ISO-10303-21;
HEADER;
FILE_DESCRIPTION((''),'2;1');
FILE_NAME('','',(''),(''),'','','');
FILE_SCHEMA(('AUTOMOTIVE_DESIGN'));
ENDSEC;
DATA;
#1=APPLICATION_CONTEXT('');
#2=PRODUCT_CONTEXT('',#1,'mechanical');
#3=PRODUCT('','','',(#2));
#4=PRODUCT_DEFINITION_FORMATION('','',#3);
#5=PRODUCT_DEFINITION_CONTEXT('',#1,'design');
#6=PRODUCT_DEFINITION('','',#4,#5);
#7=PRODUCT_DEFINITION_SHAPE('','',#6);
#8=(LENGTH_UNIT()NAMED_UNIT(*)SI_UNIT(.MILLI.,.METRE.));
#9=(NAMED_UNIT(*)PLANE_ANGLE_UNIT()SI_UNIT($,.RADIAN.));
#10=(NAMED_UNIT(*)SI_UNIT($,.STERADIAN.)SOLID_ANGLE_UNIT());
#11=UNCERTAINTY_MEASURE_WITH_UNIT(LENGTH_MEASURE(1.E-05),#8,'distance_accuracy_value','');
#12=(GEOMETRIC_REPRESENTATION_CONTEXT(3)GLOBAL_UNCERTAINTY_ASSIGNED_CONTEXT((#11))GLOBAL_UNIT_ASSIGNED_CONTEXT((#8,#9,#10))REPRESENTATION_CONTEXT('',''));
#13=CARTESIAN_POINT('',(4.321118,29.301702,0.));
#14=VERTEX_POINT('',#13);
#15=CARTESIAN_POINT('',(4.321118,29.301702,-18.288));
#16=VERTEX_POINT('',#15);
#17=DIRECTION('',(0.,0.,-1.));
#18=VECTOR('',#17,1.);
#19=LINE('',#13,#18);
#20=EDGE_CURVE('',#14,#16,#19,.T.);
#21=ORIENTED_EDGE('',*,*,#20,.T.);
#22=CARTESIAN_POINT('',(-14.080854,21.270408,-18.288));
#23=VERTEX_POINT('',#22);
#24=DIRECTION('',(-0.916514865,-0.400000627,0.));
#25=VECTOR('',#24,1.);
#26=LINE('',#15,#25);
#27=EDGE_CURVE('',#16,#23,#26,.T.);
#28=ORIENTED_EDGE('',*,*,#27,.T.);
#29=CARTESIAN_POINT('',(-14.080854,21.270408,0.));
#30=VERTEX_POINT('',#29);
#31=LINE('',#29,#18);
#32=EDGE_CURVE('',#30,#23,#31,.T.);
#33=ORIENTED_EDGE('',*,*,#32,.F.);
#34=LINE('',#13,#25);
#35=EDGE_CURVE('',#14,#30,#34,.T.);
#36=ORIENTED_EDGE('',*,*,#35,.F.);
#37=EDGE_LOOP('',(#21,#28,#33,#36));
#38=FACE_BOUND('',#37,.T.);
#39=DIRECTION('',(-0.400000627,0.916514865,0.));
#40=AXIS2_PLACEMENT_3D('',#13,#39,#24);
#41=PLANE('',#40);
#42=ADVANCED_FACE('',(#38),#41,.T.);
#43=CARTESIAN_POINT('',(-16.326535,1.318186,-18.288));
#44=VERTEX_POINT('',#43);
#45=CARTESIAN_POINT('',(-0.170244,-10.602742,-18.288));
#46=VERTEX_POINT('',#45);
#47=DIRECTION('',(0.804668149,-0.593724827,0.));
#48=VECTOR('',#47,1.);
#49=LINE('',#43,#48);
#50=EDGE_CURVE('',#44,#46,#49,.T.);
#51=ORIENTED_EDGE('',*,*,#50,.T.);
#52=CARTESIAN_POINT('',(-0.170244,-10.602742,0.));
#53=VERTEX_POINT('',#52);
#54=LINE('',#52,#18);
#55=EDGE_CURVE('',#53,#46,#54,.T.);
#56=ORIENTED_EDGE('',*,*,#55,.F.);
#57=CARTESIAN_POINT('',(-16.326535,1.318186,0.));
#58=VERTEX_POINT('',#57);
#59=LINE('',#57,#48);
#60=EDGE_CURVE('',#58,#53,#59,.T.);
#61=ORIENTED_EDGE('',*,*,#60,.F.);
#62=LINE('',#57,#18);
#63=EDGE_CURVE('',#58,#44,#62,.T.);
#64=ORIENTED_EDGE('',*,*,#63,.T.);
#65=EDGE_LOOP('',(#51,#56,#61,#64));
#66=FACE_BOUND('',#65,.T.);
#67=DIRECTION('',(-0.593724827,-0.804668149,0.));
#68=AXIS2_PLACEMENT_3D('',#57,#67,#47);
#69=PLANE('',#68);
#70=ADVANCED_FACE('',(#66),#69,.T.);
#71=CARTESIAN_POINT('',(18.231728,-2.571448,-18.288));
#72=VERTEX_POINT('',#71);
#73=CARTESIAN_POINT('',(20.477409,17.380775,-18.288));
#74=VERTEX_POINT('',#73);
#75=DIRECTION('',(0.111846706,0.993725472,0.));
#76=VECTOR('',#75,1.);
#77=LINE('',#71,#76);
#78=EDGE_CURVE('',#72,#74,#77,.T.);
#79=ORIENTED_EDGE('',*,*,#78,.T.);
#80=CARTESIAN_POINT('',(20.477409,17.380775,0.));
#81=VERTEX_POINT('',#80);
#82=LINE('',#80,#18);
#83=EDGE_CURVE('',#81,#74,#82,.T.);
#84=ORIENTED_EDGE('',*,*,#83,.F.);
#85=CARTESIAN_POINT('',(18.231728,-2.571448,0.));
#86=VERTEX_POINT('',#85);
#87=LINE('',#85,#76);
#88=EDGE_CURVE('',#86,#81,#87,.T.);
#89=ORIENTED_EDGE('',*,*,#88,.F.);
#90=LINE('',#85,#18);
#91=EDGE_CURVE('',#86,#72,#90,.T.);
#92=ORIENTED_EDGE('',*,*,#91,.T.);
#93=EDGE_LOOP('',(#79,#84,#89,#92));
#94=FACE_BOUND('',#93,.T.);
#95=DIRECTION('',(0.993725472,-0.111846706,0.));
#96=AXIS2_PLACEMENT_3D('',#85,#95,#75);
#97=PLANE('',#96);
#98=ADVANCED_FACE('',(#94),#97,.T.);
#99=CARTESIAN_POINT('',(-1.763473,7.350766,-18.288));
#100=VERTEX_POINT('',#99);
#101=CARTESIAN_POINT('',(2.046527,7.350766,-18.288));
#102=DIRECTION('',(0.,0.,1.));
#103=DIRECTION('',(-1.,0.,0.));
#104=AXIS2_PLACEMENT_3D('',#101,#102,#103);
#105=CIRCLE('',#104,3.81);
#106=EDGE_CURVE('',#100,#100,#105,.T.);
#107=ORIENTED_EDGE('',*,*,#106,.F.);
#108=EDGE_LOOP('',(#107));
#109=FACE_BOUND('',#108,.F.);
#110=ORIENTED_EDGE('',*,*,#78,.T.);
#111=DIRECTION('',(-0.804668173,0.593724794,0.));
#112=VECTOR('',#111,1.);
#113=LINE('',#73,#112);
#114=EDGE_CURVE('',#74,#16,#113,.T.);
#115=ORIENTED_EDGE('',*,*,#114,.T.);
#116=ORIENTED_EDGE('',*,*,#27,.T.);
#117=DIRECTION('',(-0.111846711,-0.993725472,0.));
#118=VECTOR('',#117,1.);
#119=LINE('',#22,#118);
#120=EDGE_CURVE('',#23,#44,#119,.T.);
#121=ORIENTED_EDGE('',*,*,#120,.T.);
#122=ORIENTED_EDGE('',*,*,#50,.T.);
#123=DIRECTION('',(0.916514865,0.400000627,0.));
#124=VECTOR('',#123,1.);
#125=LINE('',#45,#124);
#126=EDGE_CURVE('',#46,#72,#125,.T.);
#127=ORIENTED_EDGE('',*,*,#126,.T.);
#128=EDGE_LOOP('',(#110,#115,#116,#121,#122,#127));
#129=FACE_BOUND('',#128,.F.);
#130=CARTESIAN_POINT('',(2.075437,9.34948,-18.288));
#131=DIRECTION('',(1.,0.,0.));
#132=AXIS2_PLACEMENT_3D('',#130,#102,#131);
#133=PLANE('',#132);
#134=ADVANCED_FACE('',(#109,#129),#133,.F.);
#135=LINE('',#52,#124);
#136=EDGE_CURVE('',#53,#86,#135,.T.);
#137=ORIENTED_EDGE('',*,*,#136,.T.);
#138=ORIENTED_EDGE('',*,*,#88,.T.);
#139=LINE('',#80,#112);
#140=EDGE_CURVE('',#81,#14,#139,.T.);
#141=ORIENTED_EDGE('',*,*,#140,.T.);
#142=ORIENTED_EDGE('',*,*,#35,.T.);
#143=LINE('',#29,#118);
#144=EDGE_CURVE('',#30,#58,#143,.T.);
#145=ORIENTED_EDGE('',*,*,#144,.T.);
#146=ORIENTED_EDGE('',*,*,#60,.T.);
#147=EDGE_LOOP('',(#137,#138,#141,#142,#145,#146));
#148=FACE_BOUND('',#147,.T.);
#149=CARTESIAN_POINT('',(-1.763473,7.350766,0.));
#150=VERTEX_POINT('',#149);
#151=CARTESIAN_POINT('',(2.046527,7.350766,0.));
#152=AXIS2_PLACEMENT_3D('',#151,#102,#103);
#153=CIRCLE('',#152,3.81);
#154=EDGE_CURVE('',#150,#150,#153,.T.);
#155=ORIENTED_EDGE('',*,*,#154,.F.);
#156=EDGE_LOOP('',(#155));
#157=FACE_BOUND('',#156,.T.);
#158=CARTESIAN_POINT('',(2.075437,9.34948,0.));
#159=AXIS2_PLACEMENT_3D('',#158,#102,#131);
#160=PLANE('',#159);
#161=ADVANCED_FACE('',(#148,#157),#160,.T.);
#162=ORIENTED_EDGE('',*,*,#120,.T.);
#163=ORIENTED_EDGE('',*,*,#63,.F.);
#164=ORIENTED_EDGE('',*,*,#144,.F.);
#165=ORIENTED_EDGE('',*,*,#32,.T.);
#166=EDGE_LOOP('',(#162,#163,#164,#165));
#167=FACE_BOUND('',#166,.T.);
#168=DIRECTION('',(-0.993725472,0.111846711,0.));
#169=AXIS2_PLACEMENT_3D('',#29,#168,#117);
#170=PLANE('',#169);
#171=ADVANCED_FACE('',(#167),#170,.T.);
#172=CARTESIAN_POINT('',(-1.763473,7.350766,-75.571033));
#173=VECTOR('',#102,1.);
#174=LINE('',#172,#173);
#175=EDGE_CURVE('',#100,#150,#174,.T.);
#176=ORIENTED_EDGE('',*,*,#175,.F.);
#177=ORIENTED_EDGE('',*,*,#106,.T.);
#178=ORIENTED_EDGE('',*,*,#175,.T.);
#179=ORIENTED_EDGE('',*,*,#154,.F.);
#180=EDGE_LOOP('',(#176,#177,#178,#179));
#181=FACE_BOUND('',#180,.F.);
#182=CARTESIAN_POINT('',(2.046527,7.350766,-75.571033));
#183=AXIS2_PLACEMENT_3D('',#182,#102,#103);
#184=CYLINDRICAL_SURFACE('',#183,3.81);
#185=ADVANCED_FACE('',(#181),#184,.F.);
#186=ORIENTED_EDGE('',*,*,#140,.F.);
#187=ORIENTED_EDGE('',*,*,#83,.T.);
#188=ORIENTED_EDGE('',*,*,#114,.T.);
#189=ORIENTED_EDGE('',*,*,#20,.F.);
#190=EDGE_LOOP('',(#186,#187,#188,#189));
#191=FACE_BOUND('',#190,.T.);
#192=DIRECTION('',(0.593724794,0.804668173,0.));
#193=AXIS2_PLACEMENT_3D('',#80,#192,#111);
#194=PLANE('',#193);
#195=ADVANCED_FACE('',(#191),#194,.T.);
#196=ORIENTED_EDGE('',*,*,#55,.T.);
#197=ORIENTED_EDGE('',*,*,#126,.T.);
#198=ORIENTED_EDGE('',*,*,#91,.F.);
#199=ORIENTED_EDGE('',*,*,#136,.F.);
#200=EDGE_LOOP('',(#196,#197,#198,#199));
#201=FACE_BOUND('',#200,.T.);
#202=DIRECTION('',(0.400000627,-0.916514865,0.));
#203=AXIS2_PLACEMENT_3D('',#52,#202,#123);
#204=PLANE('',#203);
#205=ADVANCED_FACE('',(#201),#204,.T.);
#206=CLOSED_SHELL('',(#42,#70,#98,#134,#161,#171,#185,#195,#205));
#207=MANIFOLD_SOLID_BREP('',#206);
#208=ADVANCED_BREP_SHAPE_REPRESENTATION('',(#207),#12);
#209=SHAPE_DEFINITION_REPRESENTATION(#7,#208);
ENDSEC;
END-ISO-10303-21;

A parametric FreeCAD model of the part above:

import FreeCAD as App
import Part
import Sketcher

V = App.Vector
Q = App.Units.Quantity


def add_polygon(sketch, points):
    """Adds a closed chain of lines whose ends are joined by coincident constraints."""
    first, n = sketch.GeometryCount, len(points)
    for a, b in zip(points, points[1:] + points[:1]):
        sketch.addGeometry(Part.LineSegment(App.Vector(*a, 0), App.Vector(*b, 0)), False)
    for i in range(n):
        sketch.addConstraint(Sketcher.Constraint("Coincident", first + i, 2, first + (i + 1) % n, 1))

doc = App.newDocument("Part")
body = doc.addObject("PartDesign::Body", "Body")

sketch1 = body.newObject("Sketcher::SketchObject", "Sketch")
sketch1.AttachmentSupport = (doc.getObject("XY_Plane"), [""])
sketch1.MapMode = "FlatFace"
add_polygon(sketch1, [(-16.326535, 1.318186), (-0.170244, -10.602742), (18.231728, -2.571448), (20.477409, 17.380775), (4.321118, 29.301702), (-14.080854, 21.270408)])
sketch1.addConstraint([
    Sketcher.Constraint("Parallel", 0, 3),
    Sketcher.Constraint("Parallel", 1, 4),
    Sketcher.Constraint("Parallel", 2, 5),
    Sketcher.Constraint("Equal", 0, 1),
    Sketcher.Constraint("Equal", 1, 2),
    Sketcher.Constraint("Equal", 2, 3),
    Sketcher.Constraint("DistanceY", -1, 1, 3, 2, Q("29.301702 mm")),
    Sketcher.Constraint("DistanceY", 0, 2, -1, 1, Q("10.602742 mm")),
    Sketcher.Constraint("DistanceX", -1, 1, 1, 2, Q("18.231728 mm")),
    Sketcher.Constraint("DistanceY", 1, 2, -1, 1, Q("2.571448 mm")),
    Sketcher.Constraint("DistanceX", -1, 1, 2, 2, Q("20.477409 mm")),
    Sketcher.Constraint("DistanceX", -1, 1, 3, 2, Q("4.321118 mm")),
])
pad1 = body.newObject("PartDesign::Pad", "Pad")
pad1.Profile = sketch1
pad1.Length = Q("0.72 in")
pad1.Reversed = True

sketch2 = body.newObject("Sketcher::SketchObject", "Sketch001")
sketch2.AttachmentSupport = (doc.getObject("XY_Plane"), [""])
sketch2.MapMode = "FlatFace"
sketch2.AttachmentOffset = App.Placement(V(0, 0, -0.72 * 25.4), App.Rotation())
sketch2.addGeometry(Part.Circle(V(2.046527, 7.350766, 0), V(0, 0, 1), 3.81), False)
sketch2.addConstraint([
    Sketcher.Constraint("Diameter", 0, Q("0.3 in")),
    Sketcher.Constraint("DistanceX", -1, 1, 0, 3, Q("2.046527 mm")),
    Sketcher.Constraint("DistanceY", -1, 1, 0, 3, Q("7.350766 mm")),
])
doc.recompute()
hole = body.newObject("PartDesign::Hole", "Hole")
hole.Profile = sketch2
hole.ThreadType = "None"
hole.Diameter = Q("0.3 in")
hole.DepthType = "ThroughAll"
hole.Reversed = True

doc.recompute()
